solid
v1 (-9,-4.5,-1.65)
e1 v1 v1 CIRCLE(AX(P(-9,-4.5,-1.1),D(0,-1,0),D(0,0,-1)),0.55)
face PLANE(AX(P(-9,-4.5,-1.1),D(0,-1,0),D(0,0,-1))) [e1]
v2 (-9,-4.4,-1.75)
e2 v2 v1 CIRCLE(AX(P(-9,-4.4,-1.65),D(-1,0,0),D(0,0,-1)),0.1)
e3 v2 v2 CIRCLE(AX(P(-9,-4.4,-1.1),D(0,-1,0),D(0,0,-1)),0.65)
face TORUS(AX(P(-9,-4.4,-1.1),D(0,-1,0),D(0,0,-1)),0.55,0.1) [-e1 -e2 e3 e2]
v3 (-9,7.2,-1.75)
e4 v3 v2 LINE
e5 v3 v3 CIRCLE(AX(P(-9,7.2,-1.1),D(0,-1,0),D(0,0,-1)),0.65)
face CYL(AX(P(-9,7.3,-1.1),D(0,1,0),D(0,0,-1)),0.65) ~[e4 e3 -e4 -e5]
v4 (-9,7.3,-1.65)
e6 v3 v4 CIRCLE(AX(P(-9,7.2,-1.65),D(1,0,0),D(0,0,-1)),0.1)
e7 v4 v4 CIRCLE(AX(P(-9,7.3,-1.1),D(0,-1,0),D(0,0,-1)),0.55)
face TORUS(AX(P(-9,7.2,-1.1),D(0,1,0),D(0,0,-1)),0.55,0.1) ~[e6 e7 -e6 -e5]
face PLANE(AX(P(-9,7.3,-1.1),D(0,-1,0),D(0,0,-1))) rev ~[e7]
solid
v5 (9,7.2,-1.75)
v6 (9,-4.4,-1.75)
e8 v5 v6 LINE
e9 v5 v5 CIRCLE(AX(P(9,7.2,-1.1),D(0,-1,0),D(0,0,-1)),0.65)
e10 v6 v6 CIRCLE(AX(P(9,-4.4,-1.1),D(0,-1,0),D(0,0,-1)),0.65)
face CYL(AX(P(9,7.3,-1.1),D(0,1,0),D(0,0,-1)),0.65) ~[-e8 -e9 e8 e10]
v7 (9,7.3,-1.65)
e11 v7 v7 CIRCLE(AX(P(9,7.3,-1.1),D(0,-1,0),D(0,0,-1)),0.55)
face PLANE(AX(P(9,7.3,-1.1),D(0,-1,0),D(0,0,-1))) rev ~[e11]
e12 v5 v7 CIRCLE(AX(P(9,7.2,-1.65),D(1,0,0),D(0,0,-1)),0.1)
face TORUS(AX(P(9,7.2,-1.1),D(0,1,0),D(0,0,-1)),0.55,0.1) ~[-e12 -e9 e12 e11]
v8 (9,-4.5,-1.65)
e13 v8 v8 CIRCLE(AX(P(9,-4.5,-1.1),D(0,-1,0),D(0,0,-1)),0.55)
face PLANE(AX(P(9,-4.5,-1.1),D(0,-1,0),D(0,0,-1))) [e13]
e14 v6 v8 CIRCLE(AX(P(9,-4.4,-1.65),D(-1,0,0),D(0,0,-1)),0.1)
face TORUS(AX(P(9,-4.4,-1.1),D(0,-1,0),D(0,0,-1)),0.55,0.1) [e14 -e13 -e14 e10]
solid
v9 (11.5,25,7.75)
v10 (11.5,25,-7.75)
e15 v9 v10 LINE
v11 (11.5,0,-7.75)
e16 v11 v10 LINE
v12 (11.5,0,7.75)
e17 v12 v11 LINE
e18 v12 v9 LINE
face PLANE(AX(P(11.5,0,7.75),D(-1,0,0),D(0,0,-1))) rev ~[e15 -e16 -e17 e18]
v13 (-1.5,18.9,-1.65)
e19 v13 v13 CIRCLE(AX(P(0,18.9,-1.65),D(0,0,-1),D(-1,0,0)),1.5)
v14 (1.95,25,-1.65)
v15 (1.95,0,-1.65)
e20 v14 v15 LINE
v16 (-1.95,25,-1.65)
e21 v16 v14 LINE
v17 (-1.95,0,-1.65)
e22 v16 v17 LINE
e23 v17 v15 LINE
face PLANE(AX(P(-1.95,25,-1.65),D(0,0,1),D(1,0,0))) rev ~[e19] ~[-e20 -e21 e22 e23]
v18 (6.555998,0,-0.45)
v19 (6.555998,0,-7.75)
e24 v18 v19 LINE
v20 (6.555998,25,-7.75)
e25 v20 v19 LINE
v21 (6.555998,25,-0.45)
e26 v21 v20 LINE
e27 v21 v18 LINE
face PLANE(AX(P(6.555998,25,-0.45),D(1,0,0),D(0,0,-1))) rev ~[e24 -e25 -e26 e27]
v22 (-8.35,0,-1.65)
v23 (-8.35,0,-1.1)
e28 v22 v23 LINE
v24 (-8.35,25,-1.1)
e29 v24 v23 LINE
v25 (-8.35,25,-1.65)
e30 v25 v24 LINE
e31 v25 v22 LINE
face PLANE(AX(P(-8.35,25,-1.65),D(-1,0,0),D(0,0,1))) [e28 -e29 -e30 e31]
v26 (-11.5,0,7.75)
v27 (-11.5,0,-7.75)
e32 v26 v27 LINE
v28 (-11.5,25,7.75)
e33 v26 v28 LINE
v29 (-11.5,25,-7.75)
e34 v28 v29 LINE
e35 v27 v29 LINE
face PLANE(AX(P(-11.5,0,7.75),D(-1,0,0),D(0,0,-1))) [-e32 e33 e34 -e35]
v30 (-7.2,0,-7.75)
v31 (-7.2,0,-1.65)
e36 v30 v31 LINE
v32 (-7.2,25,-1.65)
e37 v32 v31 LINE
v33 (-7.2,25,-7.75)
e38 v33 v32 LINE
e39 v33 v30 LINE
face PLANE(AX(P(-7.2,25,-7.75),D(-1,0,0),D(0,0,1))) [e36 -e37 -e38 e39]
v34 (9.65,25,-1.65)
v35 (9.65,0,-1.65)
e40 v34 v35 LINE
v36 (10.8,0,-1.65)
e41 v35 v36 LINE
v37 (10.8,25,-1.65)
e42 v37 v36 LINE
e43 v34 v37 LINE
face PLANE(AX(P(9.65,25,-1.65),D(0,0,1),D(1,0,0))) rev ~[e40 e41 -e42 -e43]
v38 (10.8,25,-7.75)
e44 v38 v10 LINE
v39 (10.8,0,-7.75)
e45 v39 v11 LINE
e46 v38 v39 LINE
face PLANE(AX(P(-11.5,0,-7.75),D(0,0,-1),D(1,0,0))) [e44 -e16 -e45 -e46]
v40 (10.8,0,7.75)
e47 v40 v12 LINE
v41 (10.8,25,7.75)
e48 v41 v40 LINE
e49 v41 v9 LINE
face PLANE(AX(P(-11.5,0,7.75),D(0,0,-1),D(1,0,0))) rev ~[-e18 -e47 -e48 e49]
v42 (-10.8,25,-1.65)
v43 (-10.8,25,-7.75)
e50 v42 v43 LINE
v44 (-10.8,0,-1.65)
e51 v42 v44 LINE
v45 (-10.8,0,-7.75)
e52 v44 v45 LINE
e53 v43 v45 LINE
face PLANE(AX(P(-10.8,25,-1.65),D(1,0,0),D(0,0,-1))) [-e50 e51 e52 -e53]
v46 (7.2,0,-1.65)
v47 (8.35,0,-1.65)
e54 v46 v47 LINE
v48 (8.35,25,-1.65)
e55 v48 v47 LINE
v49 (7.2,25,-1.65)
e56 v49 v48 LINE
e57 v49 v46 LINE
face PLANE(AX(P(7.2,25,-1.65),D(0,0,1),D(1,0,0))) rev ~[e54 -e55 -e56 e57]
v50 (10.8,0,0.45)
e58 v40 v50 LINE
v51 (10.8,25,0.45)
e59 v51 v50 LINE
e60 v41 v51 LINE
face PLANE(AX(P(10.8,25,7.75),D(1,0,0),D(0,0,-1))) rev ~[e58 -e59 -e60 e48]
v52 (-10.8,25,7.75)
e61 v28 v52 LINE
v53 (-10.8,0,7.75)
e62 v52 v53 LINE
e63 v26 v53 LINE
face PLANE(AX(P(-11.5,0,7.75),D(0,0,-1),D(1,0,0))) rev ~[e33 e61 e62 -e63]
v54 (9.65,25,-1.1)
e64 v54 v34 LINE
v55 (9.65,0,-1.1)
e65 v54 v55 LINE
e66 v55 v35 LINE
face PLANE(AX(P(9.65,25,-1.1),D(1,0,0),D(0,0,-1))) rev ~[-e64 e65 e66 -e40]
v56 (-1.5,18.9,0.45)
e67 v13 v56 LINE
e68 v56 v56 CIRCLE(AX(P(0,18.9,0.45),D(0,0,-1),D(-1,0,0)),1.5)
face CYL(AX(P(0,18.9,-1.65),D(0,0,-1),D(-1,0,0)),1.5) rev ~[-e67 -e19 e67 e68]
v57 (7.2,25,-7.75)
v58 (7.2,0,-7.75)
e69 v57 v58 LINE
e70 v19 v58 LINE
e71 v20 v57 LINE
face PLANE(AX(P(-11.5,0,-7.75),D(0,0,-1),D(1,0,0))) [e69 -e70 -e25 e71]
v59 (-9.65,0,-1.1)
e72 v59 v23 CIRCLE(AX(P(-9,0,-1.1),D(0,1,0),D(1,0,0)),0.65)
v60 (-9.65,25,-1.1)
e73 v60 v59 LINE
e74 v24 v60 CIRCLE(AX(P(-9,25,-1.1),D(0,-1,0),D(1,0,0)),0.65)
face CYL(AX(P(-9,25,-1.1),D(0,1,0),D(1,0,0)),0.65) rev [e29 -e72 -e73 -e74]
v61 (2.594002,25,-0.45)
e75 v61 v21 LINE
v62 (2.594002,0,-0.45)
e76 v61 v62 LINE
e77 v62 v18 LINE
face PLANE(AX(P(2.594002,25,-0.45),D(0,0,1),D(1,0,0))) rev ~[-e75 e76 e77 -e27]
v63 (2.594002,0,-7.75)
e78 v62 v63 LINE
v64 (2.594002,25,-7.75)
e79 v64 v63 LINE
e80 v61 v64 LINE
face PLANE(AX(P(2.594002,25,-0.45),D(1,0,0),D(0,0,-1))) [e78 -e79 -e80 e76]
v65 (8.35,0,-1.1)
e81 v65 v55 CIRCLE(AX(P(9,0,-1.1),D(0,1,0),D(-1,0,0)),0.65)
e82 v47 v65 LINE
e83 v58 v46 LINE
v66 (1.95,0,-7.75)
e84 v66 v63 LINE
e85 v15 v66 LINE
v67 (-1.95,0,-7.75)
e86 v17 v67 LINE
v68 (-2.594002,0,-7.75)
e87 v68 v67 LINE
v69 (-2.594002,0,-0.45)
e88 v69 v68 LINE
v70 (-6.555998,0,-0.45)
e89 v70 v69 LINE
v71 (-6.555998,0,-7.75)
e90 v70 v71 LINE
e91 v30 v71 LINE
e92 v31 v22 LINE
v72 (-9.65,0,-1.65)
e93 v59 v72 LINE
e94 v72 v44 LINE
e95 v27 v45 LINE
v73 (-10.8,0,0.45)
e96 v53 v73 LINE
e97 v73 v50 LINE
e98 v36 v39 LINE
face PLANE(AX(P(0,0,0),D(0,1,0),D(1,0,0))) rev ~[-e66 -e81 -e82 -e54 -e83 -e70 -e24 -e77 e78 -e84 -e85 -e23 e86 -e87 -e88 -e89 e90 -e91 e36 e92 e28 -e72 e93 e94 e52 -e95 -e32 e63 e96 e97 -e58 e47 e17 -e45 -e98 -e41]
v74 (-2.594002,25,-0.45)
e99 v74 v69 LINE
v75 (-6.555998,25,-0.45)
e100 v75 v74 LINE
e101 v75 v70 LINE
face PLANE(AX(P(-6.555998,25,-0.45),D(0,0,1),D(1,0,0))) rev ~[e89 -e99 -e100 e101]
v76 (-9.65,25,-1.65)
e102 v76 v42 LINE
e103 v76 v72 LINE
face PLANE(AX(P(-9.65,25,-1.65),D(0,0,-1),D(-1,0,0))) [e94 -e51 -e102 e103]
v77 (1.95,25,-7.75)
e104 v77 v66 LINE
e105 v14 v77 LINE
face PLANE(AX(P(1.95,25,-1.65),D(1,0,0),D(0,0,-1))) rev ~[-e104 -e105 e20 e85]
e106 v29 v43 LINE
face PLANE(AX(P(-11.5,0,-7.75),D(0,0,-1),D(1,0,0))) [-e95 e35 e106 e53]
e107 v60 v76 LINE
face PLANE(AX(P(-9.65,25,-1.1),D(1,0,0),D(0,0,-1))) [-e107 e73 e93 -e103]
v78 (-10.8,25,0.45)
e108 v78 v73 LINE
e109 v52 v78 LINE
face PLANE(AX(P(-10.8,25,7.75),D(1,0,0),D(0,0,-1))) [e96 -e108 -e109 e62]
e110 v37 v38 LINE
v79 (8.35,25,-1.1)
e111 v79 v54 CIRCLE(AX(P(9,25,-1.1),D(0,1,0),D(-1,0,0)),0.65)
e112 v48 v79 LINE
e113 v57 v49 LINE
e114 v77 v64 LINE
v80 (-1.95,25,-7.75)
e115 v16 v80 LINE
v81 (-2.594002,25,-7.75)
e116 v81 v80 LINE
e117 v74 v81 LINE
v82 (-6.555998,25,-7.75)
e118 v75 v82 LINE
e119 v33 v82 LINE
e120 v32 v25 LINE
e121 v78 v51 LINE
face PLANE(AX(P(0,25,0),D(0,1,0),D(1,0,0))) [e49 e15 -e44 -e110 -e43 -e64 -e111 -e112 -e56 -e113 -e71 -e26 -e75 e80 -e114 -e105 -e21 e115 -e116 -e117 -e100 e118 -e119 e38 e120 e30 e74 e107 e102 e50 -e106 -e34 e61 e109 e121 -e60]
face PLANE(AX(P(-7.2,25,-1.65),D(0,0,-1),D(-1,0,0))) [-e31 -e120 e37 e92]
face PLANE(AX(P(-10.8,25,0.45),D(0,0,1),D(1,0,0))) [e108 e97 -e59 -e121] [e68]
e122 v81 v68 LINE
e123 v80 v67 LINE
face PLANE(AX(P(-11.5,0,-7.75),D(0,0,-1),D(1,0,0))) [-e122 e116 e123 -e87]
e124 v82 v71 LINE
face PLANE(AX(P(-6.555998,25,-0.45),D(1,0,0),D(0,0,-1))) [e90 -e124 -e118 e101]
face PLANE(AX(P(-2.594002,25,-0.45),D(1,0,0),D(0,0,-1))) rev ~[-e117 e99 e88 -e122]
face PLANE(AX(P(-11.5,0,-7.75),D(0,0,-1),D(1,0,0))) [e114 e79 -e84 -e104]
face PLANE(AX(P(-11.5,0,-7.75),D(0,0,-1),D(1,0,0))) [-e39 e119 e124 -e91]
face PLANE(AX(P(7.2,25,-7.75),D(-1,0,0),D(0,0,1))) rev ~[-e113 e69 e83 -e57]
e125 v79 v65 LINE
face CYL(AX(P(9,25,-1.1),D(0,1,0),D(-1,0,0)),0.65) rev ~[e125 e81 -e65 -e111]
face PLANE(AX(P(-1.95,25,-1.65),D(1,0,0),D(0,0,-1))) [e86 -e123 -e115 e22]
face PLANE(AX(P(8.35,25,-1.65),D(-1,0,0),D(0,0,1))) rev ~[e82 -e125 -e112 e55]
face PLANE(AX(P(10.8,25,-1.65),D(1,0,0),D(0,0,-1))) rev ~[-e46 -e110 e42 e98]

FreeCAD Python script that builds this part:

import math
import FreeCAD as App
import Part
import Sketcher
Q = App.Units.Quantity


def edges_at(feature, points):
    """Names of the edges that pass closest to the given points."""
    edges = feature.Shape.Edges
    near = lambda p: min(range(len(edges)), key=lambda i: edges[i].distToShape(Part.Vertex(*p))[0])
    return sorted({f"Edge{near(p) + 1}" for p in points})

doc = App.newDocument("Part")
body = doc.addObject("PartDesign::Body", "Body")

sketch1 = body.newObject("Sketcher::SketchObject", "Sketch")
sketch1.AttachmentSupport = (doc.getObject("XZ_Plane"), [""])
sketch1.MapMode = "FlatFace"
sketch1.addGeometry([
    Part.LineSegment(App.Vector(-11.5, -7.75, 0), App.Vector(-11.5, 7.75, 0)),
    Part.LineSegment(App.Vector(-11.5, 7.75, 0), App.Vector(11.5, 7.75, 0)),
    Part.LineSegment(App.Vector(11.5, 7.75, 0), App.Vector(11.5, -7.75, 0)),
    Part.LineSegment(App.Vector(11.5, -7.75, 0), App.Vector(-11.5, -7.75, 0)),
], False)
sketch1.addConstraint([
    Sketcher.Constraint("Coincident", 0, 2, 1, 1),
    Sketcher.Constraint("Coincident", 1, 2, 2, 1),
    Sketcher.Constraint("Coincident", 2, 2, 3, 1),
    Sketcher.Constraint("Coincident", 3, 2, 0, 1),
    Sketcher.Constraint("Vertical", 0),
    Sketcher.Constraint("Horizontal", 1),
    Sketcher.Constraint("Vertical", 2),
    Sketcher.Constraint("Horizontal", 3),
    Sketcher.Constraint("Symmetric", 0, 2, 2, 2, -1, 1),
    Sketcher.Constraint("DistanceX", 1, 1, 1, 2, Q("23 mm")),
    Sketcher.Constraint("DistanceY", 0, 1, 0, 2, Q("15.5 mm")),
])
pad1 = body.newObject("PartDesign::Pad", "Pad")
pad1.Profile = sketch1
pad1.Length = 25
pad1.Reversed = True

sketch2 = body.newObject("Sketcher::SketchObject", "Sketch001")
sketch2.AttachmentSupport = (doc.getObject("XZ_Plane"), [""])
sketch2.MapMode = "FlatFace"
sketch2.AttachmentOffset = App.Placement(App.Vector(0, 0, -25), App.Rotation())
sketch2.addGeometry([
    Part.LineSegment(App.Vector(-1.95, -7.75, 0), App.Vector(-1.95, -1.65, 0)),
    Part.LineSegment(App.Vector(-1.95, -1.65, 0), App.Vector(1.95, -1.65, 0)),
    Part.LineSegment(App.Vector(1.95, -1.65, 0), App.Vector(1.95, -7.75, 0)),
    Part.LineSegment(App.Vector(1.95, -7.75, 0), App.Vector(-1.95, -7.75, 0)),
    Part.LineSegment(App.Vector(-7.2, -7.75, 0), App.Vector(-10.8, -7.75, 0)),
    Part.LineSegment(App.Vector(-10.8, -7.75, 0), App.Vector(-10.8, -1.65, 0)),
    Part.LineSegment(App.Vector(-10.8, -1.65, 0), App.Vector(-9.65, -1.65, 0)),
    Part.LineSegment(App.Vector(-9.65, -1.65, 0), App.Vector(-9.65, -1.1, 0)),
    Part.ArcOfCircle(Part.Circle(App.Vector(-9, -1.1, 0), App.Vector(0, 0, 1), 0.65), math.radians(0), math.radians(180)),
    Part.LineSegment(App.Vector(-8.35, -1.1, 0), App.Vector(-8.35, -1.65, 0)),
    Part.LineSegment(App.Vector(-8.35, -1.65, 0), App.Vector(-7.2, -1.65, 0)),
    Part.LineSegment(App.Vector(-7.2, -1.65, 0), App.Vector(-7.2, -7.75, 0)),
    Part.LineSegment(App.Vector(10.8, -7.75, 0), App.Vector(7.2, -7.75, 0)),
    Part.LineSegment(App.Vector(7.2, -7.75, 0), App.Vector(7.2, -1.65, 0)),
    Part.LineSegment(App.Vector(7.2, -1.65, 0), App.Vector(8.35, -1.65, 0)),
    Part.LineSegment(App.Vector(8.35, -1.65, 0), App.Vector(8.35, -1.1, 0)),
    Part.ArcOfCircle(Part.Circle(App.Vector(9, -1.1, 0), App.Vector(0, 0, 1), 0.65), math.radians(0), math.radians(180)),
    Part.LineSegment(App.Vector(9.65, -1.1, 0), App.Vector(9.65, -1.65, 0)),
    Part.LineSegment(App.Vector(9.65, -1.65, 0), App.Vector(10.8, -1.65, 0)),
    Part.LineSegment(App.Vector(10.8, -1.65, 0), App.Vector(10.8, -7.75, 0)),
    Part.LineSegment(App.Vector(-6.555998, -7.75, 0), App.Vector(-6.555998, -0.45, 0)),
    Part.LineSegment(App.Vector(-6.555998, -0.45, 0), App.Vector(-2.594002, -0.45, 0)),
    Part.LineSegment(App.Vector(-2.594002, -0.45, 0), App.Vector(-2.594002, -7.75, 0)),
    Part.LineSegment(App.Vector(-2.594002, -7.75, 0), App.Vector(-6.555998, -7.75, 0)),
    Part.LineSegment(App.Vector(2.594002, -7.75, 0), App.Vector(2.594002, -0.45, 0)),
    Part.LineSegment(App.Vector(2.594002, -0.45, 0), App.Vector(6.555998, -0.45, 0)),
    Part.LineSegment(App.Vector(6.555998, -0.45, 0), App.Vector(6.555998, -7.75, 0)),
    Part.LineSegment(App.Vector(6.555998, -7.75, 0), App.Vector(2.594002, -7.75, 0)),
    Part.LineSegment(App.Vector(-10.8, 0.45, 0), App.Vector(-10.8, 7.75, 0)),
    Part.LineSegment(App.Vector(-10.8, 7.75, 0), App.Vector(10.8, 7.75, 0)),
    Part.LineSegment(App.Vector(10.8, 7.75, 0), App.Vector(10.8, 0.45, 0)),
    Part.LineSegment(App.Vector(10.8, 0.45, 0), App.Vector(-10.8, 0.45, 0)),
], False)
sketch2.addConstraint([
    Sketcher.Constraint("Coincident", 0, 2, 1, 1),
    Sketcher.Constraint("Coincident", 1, 2, 2, 1),
    Sketcher.Constraint("Coincident", 2, 2, 3, 1),
    Sketcher.Constraint("Coincident", 3, 2, 0, 1),
    Sketcher.Constraint("Coincident", 4, 2, 5, 1),
    Sketcher.Constraint("Coincident", 5, 2, 6, 1),
    Sketcher.Constraint("Coincident", 6, 2, 7, 1),
    Sketcher.Constraint("Tangent", 7, 2, 8, 2),
    Sketcher.Constraint("Tangent", 8, 1, 9, 1),
    Sketcher.Constraint("Coincident", 9, 2, 10, 1),
    Sketcher.Constraint("Coincident", 10, 2, 11, 1),
    Sketcher.Constraint("Coincident", 11, 2, 4, 1),
    Sketcher.Constraint("Coincident", 12, 2, 13, 1),
    Sketcher.Constraint("Coincident", 13, 2, 14, 1),
    Sketcher.Constraint("Coincident", 14, 2, 15, 1),
    Sketcher.Constraint("Tangent", 15, 2, 16, 2),
    Sketcher.Constraint("Tangent", 16, 1, 17, 1),
    Sketcher.Constraint("Coincident", 17, 2, 18, 1),
    Sketcher.Constraint("Coincident", 18, 2, 19, 1),
    Sketcher.Constraint("Coincident", 19, 2, 12, 1),
    Sketcher.Constraint("Coincident", 20, 2, 21, 1),
    Sketcher.Constraint("Coincident", 21, 2, 22, 1),
    Sketcher.Constraint("Coincident", 22, 2, 23, 1),
    Sketcher.Constraint("Coincident", 23, 2, 20, 1),
    Sketcher.Constraint("Coincident", 24, 2, 25, 1),
    Sketcher.Constraint("Coincident", 25, 2, 26, 1),
    Sketcher.Constraint("Coincident", 26, 2, 27, 1),
    Sketcher.Constraint("Coincident", 27, 2, 24, 1),
    Sketcher.Constraint("Coincident", 28, 2, 29, 1),
    Sketcher.Constraint("Coincident", 29, 2, 30, 1),
    Sketcher.Constraint("Coincident", 30, 2, 31, 1),
    Sketcher.Constraint("Coincident", 31, 2, 28, 1),
    Sketcher.Constraint("Vertical", 0),
    Sketcher.Constraint("Horizontal", 1),
    Sketcher.Constraint("Vertical", 2),
    Sketcher.Constraint("Horizontal", 3),
    Sketcher.Constraint("Horizontal", 4),
    Sketcher.Constraint("Vertical", 5),
    Sketcher.Constraint("Horizontal", 6),
    Sketcher.Constraint("Vertical", 7),
    Sketcher.Constraint("Vertical", 9),
    Sketcher.Constraint("Horizontal", 10),
    Sketcher.Constraint("Vertical", 11),
    Sketcher.Constraint("Horizontal", 12),
    Sketcher.Constraint("Vertical", 13),
    Sketcher.Constraint("Horizontal", 14),
    Sketcher.Constraint("Vertical", 15),
    Sketcher.Constraint("Vertical", 17),
    Sketcher.Constraint("Horizontal", 18),
    Sketcher.Constraint("Vertical", 19),
    Sketcher.Constraint("Vertical", 20),
    Sketcher.Constraint("Horizontal", 21),
    Sketcher.Constraint("Vertical", 22),
    Sketcher.Constraint("Horizontal", 23),
    Sketcher.Constraint("Vertical", 24),
    Sketcher.Constraint("Horizontal", 25),
    Sketcher.Constraint("Vertical", 26),
    Sketcher.Constraint("Horizontal", 27),
    Sketcher.Constraint("Vertical", 28),
    Sketcher.Constraint("Horizontal", 29),
    Sketcher.Constraint("Vertical", 30),
    Sketcher.Constraint("Horizontal", 31),
    Sketcher.Constraint("Equal", 8, 16),
    Sketcher.Constraint("Symmetric", 19, 2, 28, 2, -1, 1),
    Sketcher.Constraint("Symmetric", 4, 2, 29, 2, -1, 1),
    Sketcher.Constraint("Symmetric", 8, 3, 16, 3, -2),
    Sketcher.Constraint("Symmetric", 10, 2, 13, 2, -2),
    Sketcher.Constraint("Symmetric", 5, 2, 18, 2, -2),
    Sketcher.Constraint("Symmetric", 21, 2, 24, 2, -2),
    Sketcher.Constraint("Symmetric", 23, 2, 26, 2, -2),
    Sketcher.Constraint("Horizontal", 3, 2, 4, 2),
    Sketcher.Constraint("Horizontal", 1, 2, 5, 2),
    Sketcher.Constraint("Horizontal", 6, 2, 9, 2),
    Sketcher.Constraint("Horizontal", 19, 2, 22, 2),
    Sketcher.Constraint("Equal", 6, 10),
    Sketcher.Constraint("Equal", 26, 28),
    Sketcher.Constraint("Radius", 8, Q("0.65 mm")),
    Sketcher.Constraint("DistanceX", 1, 1, 1, 2, Q("3.9 mm")),
    Sketcher.Constraint("DistanceX", 4, 2, 4, 1, Q("3.6 mm")),
    Sketcher.Constraint("DistanceX", 29, 1, 29, 2, Q("21.6 mm")),
    Sketcher.Constraint("DistanceY", 0, 1, 0, 2, Q("6.1 mm")),
    Sketcher.Constraint("DistanceY", 20, 1, 20, 2, Q("7.3 mm")),
    Sketcher.Constraint("DistanceY", 7, 1, 7, 2, Q("0.55 mm")),
    Sketcher.Constraint("DistanceY", 8, 3, -1, 1, Q("1.1 mm")),
    Sketcher.Constraint("DistanceX", 6, 2, 0, 2, Q("7.7 mm")),
    Sketcher.Constraint("DistanceX", 20, 2, -1, 1, Q("6.555998 mm")),
    Sketcher.Constraint("DistanceX", 21, 2, -1, 1, Q("2.594002 mm")),
])
pocket1 = body.newObject("PartDesign::Pocket", "Pocket")
pocket1.Profile = sketch2
pocket1.Type = "ThroughAll"
pocket1.Reversed = True

sketch3 = body.newObject("Sketcher::SketchObject", "Sketch002")
sketch3.AttachmentSupport = (doc.getObject("XY_Plane"), [""])
sketch3.MapMode = "FlatFace"
sketch3.AttachmentOffset = App.Placement(App.Vector(0, 0, -1.65), App.Rotation())
sketch3.addGeometry(Part.Circle(App.Vector(0, 18.9, 0), App.Vector(0, 0, 1), 1.5), False)
sketch3.addConstraint([
    Sketcher.Constraint("PointOnObject", 0, 3, -2),
    Sketcher.Constraint("Diameter", 0, Q("3 mm")),
    Sketcher.Constraint("DistanceY", -1, 1, 0, 3, Q("18.9 mm")),
])
pocket2 = body.newObject("PartDesign::Pocket", "Pocket001")
pocket2.Profile = sketch3
pocket2.Type = "ThroughAll"
pocket2.Reversed = True
body2 = doc.addObject("PartDesign::Body", "Body001")

sketch4 = body2.newObject("Sketcher::SketchObject", "Sketch003")
sketch4.AttachmentSupport = (doc.getObject("XZ_Plane001"), [""])
sketch4.MapMode = "FlatFace"
sketch4.addGeometry(Part.Circle(App.Vector(-9, -1.1, 0), App.Vector(0, 0, 1), 0.65), False)
sketch4.addConstraint([
    Sketcher.Constraint("Diameter", 0, Q("1.3 mm")),
    Sketcher.Constraint("DistanceX", 0, 3, -1, 1, Q("9 mm")),
    Sketcher.Constraint("DistanceY", 0, 3, -1, 1, Q("1.1 mm")),
])
pad2 = body2.newObject("PartDesign::Pad", "Pad001")
pad2.Profile = sketch4
pad2.Type = "TwoLengths"
pad2.Length = 4.5
pad2.Length2 = 7.3
doc.recompute()

fillet = body2.newObject("PartDesign::Fillet", "Fillet")
fillet.Base = (pad2, edges_at(pad2, [(-9, -4.5, -0.45), (-9, 7.3, -0.45)]))
fillet.Radius = 0.1
body3 = doc.addObject("PartDesign::Body", "Body002")

sketch5 = body3.newObject("Sketcher::SketchObject", "Sketch004")
sketch5.AttachmentSupport = (doc.getObject("XZ_Plane002"), [""])
sketch5.MapMode = "FlatFace"
sketch5.addGeometry(Part.Circle(App.Vector(9, -1.1, 0), App.Vector(0, 0, 1), 0.65), False)
sketch5.addConstraint([
    Sketcher.Constraint("Diameter", 0, Q("1.3 mm")),
    Sketcher.Constraint("DistanceX", -1, 1, 0, 3, Q("9 mm")),
    Sketcher.Constraint("DistanceY", 0, 3, -1, 1, Q("1.1 mm")),
])
pad3 = body3.newObject("PartDesign::Pad", "Pad002")
pad3.Profile = sketch5
pad3.Type = "TwoLengths"
pad3.Length = 4.5
pad3.Length2 = 7.3
doc.recompute()

fillet2 = body3.newObject("PartDesign::Fillet", "Fillet001")
fillet2.Base = (pad3, edges_at(pad3, [(9, -4.5, -0.45), (9, 7.3, -0.45)]))
fillet2.Radius = 0.1

doc.recompute()
